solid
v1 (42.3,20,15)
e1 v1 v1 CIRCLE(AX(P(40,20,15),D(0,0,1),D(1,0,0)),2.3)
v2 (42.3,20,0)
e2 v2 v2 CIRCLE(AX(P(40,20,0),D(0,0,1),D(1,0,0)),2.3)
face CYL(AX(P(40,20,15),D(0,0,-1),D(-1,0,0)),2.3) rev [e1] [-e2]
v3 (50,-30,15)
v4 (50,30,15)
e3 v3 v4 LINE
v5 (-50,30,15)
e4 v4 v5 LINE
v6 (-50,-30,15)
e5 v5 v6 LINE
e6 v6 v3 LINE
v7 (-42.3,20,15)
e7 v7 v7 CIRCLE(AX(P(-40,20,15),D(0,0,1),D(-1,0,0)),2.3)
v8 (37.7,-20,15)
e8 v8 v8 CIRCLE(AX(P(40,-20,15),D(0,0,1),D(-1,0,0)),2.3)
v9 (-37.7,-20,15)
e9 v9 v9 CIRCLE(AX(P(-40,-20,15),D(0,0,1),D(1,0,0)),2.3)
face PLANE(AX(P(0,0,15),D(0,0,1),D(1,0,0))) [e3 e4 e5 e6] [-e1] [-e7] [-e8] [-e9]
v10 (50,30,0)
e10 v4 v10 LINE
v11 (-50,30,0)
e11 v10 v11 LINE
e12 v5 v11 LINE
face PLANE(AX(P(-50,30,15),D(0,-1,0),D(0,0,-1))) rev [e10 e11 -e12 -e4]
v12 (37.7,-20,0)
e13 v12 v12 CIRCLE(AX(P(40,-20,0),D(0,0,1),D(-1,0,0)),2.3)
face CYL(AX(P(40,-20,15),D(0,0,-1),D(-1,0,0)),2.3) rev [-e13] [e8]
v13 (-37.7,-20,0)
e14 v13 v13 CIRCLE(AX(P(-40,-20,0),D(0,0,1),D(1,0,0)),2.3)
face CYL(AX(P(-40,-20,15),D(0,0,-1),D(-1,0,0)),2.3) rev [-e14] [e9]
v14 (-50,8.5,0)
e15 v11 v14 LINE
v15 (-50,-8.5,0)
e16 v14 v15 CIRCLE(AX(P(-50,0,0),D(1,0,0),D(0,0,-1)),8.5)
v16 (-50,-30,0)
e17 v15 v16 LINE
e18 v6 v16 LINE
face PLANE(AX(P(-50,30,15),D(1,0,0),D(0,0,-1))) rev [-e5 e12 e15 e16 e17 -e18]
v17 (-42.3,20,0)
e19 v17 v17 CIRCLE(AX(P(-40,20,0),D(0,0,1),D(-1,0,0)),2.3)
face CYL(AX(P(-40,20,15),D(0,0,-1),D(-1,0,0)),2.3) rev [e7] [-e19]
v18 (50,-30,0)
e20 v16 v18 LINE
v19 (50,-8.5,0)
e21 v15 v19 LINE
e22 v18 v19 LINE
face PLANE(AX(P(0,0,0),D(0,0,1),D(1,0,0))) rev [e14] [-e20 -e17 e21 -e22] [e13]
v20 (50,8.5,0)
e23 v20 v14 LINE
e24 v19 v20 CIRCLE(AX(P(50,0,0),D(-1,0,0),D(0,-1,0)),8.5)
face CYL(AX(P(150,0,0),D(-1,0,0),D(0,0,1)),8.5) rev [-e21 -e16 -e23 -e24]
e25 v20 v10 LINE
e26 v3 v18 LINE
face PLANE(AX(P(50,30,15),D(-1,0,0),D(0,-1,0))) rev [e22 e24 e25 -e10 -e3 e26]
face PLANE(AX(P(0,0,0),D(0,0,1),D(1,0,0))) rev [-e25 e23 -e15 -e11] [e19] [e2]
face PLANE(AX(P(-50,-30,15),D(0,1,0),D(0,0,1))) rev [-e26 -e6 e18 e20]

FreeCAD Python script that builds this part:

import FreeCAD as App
import Part
import Sketcher

doc = App.newDocument("Part")
params = doc.addObject("Spreadsheet::Sheet", "Params")
for row, (alias, value) in enumerate([
    ("sketch1_diameter", "4.6 mm"),
    ("sketch1_width", "100 mm"),
    ("sketch1_height", "60 mm"),
    ("pad1_length", "15 mm"),
    ("sketch2_diameter", "17 mm"),
    ("pocket1_length", "400 mm"),
], start=1):
    params.set(f"A{row}", alias)
    params.set(f"B{row}", "=" + value)
    params.setAlias(f"B{row}", alias)

body = doc.addObject("PartDesign::Body", "Body")

sketch1 = body.newObject("Sketcher::SketchObject", "Sketch")
sketch1.AttachmentSupport = (doc.getObject("XY_Plane"), [""])
sketch1.MapMode = "FlatFace"
sketch1.addGeometry([
    Part.LineSegment(App.Vector(-50, 30, 0), App.Vector(-50, -30, 0)),
    Part.LineSegment(App.Vector(-50, -30, 0), App.Vector(50, -30, 0)),
    Part.LineSegment(App.Vector(50, -30, 0), App.Vector(50, 30, 0)),
    Part.LineSegment(App.Vector(50, 30, 0), App.Vector(-50, 30, 0)),
    Part.Circle(App.Vector(-40, -20, 0), App.Vector(0, 0, 1), 2.3),
    Part.Circle(App.Vector(40, -20, 0), App.Vector(0, 0, 1), 2.3),
    Part.Circle(App.Vector(-40, 20, 0), App.Vector(0, 0, 1), 2.3),
    Part.Circle(App.Vector(40, 20, 0), App.Vector(0, 0, 1), 2.3),
], False)
sketch1.addConstraint([
    Sketcher.Constraint("Coincident", 0, 2, 1, 1),
    Sketcher.Constraint("Coincident", 1, 2, 2, 1),
    Sketcher.Constraint("Coincident", 2, 2, 3, 1),
    Sketcher.Constraint("Coincident", 3, 2, 0, 1),
    Sketcher.Constraint("Vertical", 0),
    Sketcher.Constraint("Horizontal", 1),
    Sketcher.Constraint("Vertical", 2),
    Sketcher.Constraint("Horizontal", 3),
    Sketcher.Constraint("Equal", 4, 5),
    Sketcher.Constraint("Equal", 5, 6),
    Sketcher.Constraint("Equal", 6, 7),
    Sketcher.Constraint("Symmetric", 5, 3, 6, 3, -1, 1),
    Sketcher.Constraint("Symmetric", 4, 3, 7, 3, -1, 1),
    Sketcher.Constraint("Symmetric", 0, 2, 2, 2, -1, 1),
    Sketcher.Constraint("Symmetric", 4, 3, 5, 3, -2),
    Sketcher.Constraint("Diameter", 4, 4.6),
    Sketcher.Constraint("DistanceX", 1, 1, 1, 2, 100.0),
    Sketcher.Constraint("DistanceY", 0, 2, 0, 1, 60.0),
    Sketcher.Constraint("DistanceX", 4, 3, -1, 1, 40.0),
    Sketcher.Constraint("DistanceY", 4, 3, -1, 1, 20.0),
])
sketch1.setExpression("Constraints[15]", "Params.sketch1_diameter")
sketch1.setExpression("Constraints[16]", "Params.sketch1_width")
sketch1.setExpression("Constraints[17]", "Params.sketch1_height")
pad1 = body.newObject("PartDesign::Pad", "Pad")
pad1.Profile = sketch1
pad1.setExpression("Length", "Params.pad1_length")

sketch2 = body.newObject("Sketcher::SketchObject", "Sketch001")
sketch2.AttachmentSupport = (doc.getObject("YZ_Plane"), [""])
sketch2.MapMode = "FlatFace"
sketch2.AttachmentOffset = App.Placement(App.Vector(0, 0, -50), App.Rotation())
sketch2.addGeometry(Part.Circle(App.Vector(0, 0, 0), App.Vector(0, 0, 1), 8), False)
sketch2.addConstraint([
    Sketcher.Constraint("Coincident", 0, 3, -1, 1),
    Sketcher.Constraint("Diameter", 0, 17.0),
])
sketch2.setExpression("Constraints[1]", "Params.sketch2_diameter")
pocket1 = body.newObject("PartDesign::Pocket", "Pocket")
pocket1.Profile = sketch2
pocket1.setExpression("Length", "Params.pocket1_length")
pocket1.Midplane = True

doc.recompute()
